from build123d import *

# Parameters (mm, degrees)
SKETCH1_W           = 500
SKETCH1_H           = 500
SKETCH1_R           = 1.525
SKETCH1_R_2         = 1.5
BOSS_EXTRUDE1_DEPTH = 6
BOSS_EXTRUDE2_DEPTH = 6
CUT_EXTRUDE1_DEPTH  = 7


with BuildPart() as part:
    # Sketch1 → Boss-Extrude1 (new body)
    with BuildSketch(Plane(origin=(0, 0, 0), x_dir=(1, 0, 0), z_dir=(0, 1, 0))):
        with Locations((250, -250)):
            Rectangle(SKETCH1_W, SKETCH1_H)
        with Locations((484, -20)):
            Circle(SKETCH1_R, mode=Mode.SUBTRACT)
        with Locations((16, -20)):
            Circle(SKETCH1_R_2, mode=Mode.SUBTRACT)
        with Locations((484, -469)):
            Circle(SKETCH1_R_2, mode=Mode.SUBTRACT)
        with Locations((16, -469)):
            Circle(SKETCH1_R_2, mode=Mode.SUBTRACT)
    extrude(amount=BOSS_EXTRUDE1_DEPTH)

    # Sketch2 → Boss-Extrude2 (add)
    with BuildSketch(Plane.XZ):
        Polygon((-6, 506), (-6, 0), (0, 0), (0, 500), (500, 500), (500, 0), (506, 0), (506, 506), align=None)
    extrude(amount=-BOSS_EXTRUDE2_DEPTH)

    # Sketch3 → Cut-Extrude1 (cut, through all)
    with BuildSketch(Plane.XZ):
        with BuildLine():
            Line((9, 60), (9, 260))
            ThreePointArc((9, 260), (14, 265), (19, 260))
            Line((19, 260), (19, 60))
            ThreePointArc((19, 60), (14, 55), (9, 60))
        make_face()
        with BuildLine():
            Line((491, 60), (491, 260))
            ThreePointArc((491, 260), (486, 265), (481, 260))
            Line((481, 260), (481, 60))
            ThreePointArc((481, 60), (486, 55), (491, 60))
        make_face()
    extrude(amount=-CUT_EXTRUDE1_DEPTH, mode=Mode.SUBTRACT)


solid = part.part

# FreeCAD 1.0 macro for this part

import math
import FreeCAD as App
import Part
import Sketcher

V = App.Vector
Q = App.Units.Quantity


def add_polygon(sketch, points):
    """Adds a closed chain of lines whose ends are joined by coincident constraints."""
    first, n = sketch.GeometryCount, len(points)
    for a, b in zip(points, points[1:] + points[:1]):
        sketch.addGeometry(Part.LineSegment(App.Vector(*a, 0), App.Vector(*b, 0)), False)
    for i in range(n):
        sketch.addConstraint(Sketcher.Constraint("Coincident", first + i, 2, first + (i + 1) % n, 1))

doc = App.newDocument("Part")
params = doc.addObject("Spreadsheet::Sheet", "Params")
for row, (alias, value) in enumerate([
    ("sketch1_diameter", "3 mm"),
    ("sketch1_diameter2", "3.05 mm"),
    ("sketch1_width", "500 mm"),
    ("pad1_length", "6 mm"),
    ("sketch2_width", "6 mm"),
    ("sketch2_width2", "500 mm"),
    ("sketch2_height", "506 mm"),
    ("pad2_length", "6 mm"),
    ("sketch3_radius", "5 mm"),
    ("sketch3_height", "200 mm"),
], start=1):
    params.set(f"A{row}", alias)
    params.set(f"B{row}", "=" + value)
    params.setAlias(f"B{row}", alias)

body = doc.addObject("PartDesign::Body", "Body")

sketch1 = body.newObject("Sketcher::SketchObject", "Sketch")
sketch1.AttachmentSupport = (doc.getObject("XZ_Plane"), [""])
sketch1.MapMode = "FlatFace"
add_polygon(sketch1, [(0, 0), (0, 500), (500, 500), (500, 0)])
sketch1.addGeometry(Part.Circle(V(16, 469, 0), V(0, 0, 1), 1.5), False)
sketch1.addGeometry(Part.Circle(V(484, 469, 0), V(0, 0, 1), 1.5), False)
sketch1.addGeometry(Part.Circle(V(16, 20, 0), V(0, 0, 1), 1.5), False)
sketch1.addGeometry(Part.Circle(V(484, 20, 0), V(0, 0, 1), 1.525), False)
sketch1.addConstraint(Sketcher.Constraint("Vertical", 0))
sketch1.addConstraint(Sketcher.Constraint("Horizontal", 1))
sketch1.addConstraint(Sketcher.Constraint("Vertical", 2))
sketch1.addConstraint(Sketcher.Constraint("Horizontal", 3))
sketch1.addConstraint(Sketcher.Constraint("Coincident", 3, 2, -1, 1))
sketch1.addConstraint(Sketcher.Constraint("Equal", 4, 5))
sketch1.addConstraint(Sketcher.Constraint("Equal", 5, 6))
sketch1.addConstraint(Sketcher.Constraint("Horizontal", 4, 3, 5, 3))
sketch1.addConstraint(Sketcher.Constraint("Horizontal", 6, 3, 7, 3))
sketch1.addConstraint(Sketcher.Constraint("Vertical", 4, 3, 6, 3))
sketch1.addConstraint(Sketcher.Constraint("Vertical", 5, 3, 7, 3))
sketch1.addConstraint(Sketcher.Constraint("Equal", 3, 0))
sketch1.addConstraint(Sketcher.Constraint("Diameter", 4, Q("3 mm")))
sketch1.addConstraint(Sketcher.Constraint("Diameter", 7, Q("3.05 mm")))
sketch1.addConstraint(Sketcher.Constraint("DistanceX", 1, 1, 1, 2, Q("500 mm")))
sketch1.addConstraint(Sketcher.Constraint("DistanceX", -1, 1, 4, 3, Q("16 mm")))
sketch1.addConstraint(Sketcher.Constraint("DistanceY", -1, 1, 4, 3, Q("469 mm")))
sketch1.addConstraint(Sketcher.Constraint("DistanceX", -1, 1, 5, 3, Q("484 mm")))
sketch1.addConstraint(Sketcher.Constraint("DistanceY", -1, 1, 6, 3, Q("20 mm")))
sketch1.setExpression("Constraints[16]", "Params.sketch1_diameter")
sketch1.setExpression("Constraints[17]", "Params.sketch1_diameter2")
sketch1.setExpression("Constraints[18]", "Params.sketch1_width")
pad1 = body.newObject("PartDesign::Pad", "Pad")
pad1.Profile = sketch1
pad1.setExpression("Length", "Params.pad1_length")
pad1.Reversed = True

sketch2 = body.newObject("Sketcher::SketchObject", "Sketch001")
sketch2.AttachmentSupport = (doc.getObject("XZ_Plane"), [""])
sketch2.MapMode = "FlatFace"
add_polygon(sketch2, [(-6, 506), (-6, 0), (0, 0), (0, 500), (500, 500), (500, 0), (506, 0), (506, 506)])
sketch2.addConstraint(Sketcher.Constraint("Vertical", 0))
sketch2.addConstraint(Sketcher.Constraint("Horizontal", 1))
sketch2.addConstraint(Sketcher.Constraint("Vertical", 2))
sketch2.addConstraint(Sketcher.Constraint("Horizontal", 3))
sketch2.addConstraint(Sketcher.Constraint("Vertical", 4))
sketch2.addConstraint(Sketcher.Constraint("Horizontal", 5))
sketch2.addConstraint(Sketcher.Constraint("Vertical", 6))
sketch2.addConstraint(Sketcher.Constraint("Horizontal", 7))
sketch2.addConstraint(Sketcher.Constraint("Coincident", 1, 2, -1, 1))
sketch2.addConstraint(Sketcher.Constraint("PointOnObject", 4, 2, -1))
sketch2.addConstraint(Sketcher.Constraint("Equal", 1, 5))
sketch2.addConstraint(Sketcher.Constraint("Equal", 3, 2))
sketch2.addConstraint(Sketcher.Constraint("DistanceX", 1, 1, 1, 2, Q("6 mm")))
sketch2.addConstraint(Sketcher.Constraint("DistanceX", 3, 1, 3, 2, Q("500 mm")))
sketch2.addConstraint(Sketcher.Constraint("DistanceY", 0, 2, 0, 1, Q("506 mm")))
sketch2.setExpression("Constraints[20]", "Params.sketch2_width")
sketch2.setExpression("Constraints[21]", "Params.sketch2_width2")
sketch2.setExpression("Constraints[22]", "Params.sketch2_height")
pad2 = body.newObject("PartDesign::Pad", "Pad001")
pad2.Profile = sketch2
pad2.setExpression("Length", "Params.pad2_length")
pad2.Reversed = True

sketch3 = body.newObject("Sketcher::SketchObject", "Sketch002")
sketch3.AttachmentSupport = (doc.getObject("XZ_Plane"), [""])
sketch3.MapMode = "FlatFace"
sketch3.addGeometry(Part.LineSegment(V(9, 260, 0), V(9, 60, 0)), False)
sketch3.addGeometry(Part.ArcOfCircle(Part.Circle(V(14, 60, 0), V(0, 0, 1), 5), math.radians(180), math.radians(360)), False)
sketch3.addGeometry(Part.LineSegment(V(19, 60, 0), V(19, 260, 0)), False)
sketch3.addGeometry(Part.ArcOfCircle(Part.Circle(V(14, 260, 0), V(0, 0, 1), 5), math.radians(0), math.radians(180)), False)
sketch3.addGeometry(Part.LineSegment(V(491, 60, 0), V(491, 260, 0)), False)
sketch3.addGeometry(Part.ArcOfCircle(Part.Circle(V(486, 260, 0), V(0, 0, 1), 5), math.radians(0), math.radians(180)), False)
sketch3.addGeometry(Part.LineSegment(V(481, 260, 0), V(481, 60, 0)), False)
sketch3.addGeometry(Part.ArcOfCircle(Part.Circle(V(486, 60, 0), V(0, 0, 1), 5), math.radians(180), math.radians(360)), False)
sketch3.addConstraint(Sketcher.Constraint("Tangent", 0, 2, 1, 1))
sketch3.addConstraint(Sketcher.Constraint("Tangent", 1, 2, 2, 1))
sketch3.addConstraint(Sketcher.Constraint("Tangent", 2, 2, 3, 1))
sketch3.addConstraint(Sketcher.Constraint("Tangent", 3, 2, 0, 1))
sketch3.addConstraint(Sketcher.Constraint("Tangent", 4, 2, 5, 1))
sketch3.addConstraint(Sketcher.Constraint("Tangent", 5, 2, 6, 1))
sketch3.addConstraint(Sketcher.Constraint("Tangent", 6, 2, 7, 1))
sketch3.addConstraint(Sketcher.Constraint("Tangent", 7, 2, 4, 1))
sketch3.addConstraint(Sketcher.Constraint("Vertical", 0))
sketch3.addConstraint(Sketcher.Constraint("Vertical", 2))
sketch3.addConstraint(Sketcher.Constraint("Vertical", 4))
sketch3.addConstraint(Sketcher.Constraint("Vertical", 6))
sketch3.addConstraint(Sketcher.Constraint("Equal", 3, 5))
sketch3.addConstraint(Sketcher.Constraint("Horizontal", 3, 3, 5, 3))
sketch3.addConstraint(Sketcher.Constraint("Horizontal", 1, 3, 7, 3))
sketch3.addConstraint(Sketcher.Constraint("Radius", 1, Q("5 mm")))
sketch3.addConstraint(Sketcher.Constraint("DistanceY", 0, 2, 0, 1, Q("200 mm")))
sketch3.addConstraint(Sketcher.Constraint("DistanceX", -1, 1, 1, 3, Q("14 mm")))
sketch3.addConstraint(Sketcher.Constraint("DistanceY", -1, 1, 1, 3, Q("60 mm")))
sketch3.addConstraint(Sketcher.Constraint("DistanceX", -1, 1, 5, 3, Q("486 mm")))
sketch3.setExpression("Constraints[15]", "Params.sketch3_radius")
sketch3.setExpression("Constraints[16]", "Params.sketch3_height")
pocket1 = body.newObject("PartDesign::Pocket", "Pocket")
pocket1.Profile = sketch3
pocket1.Type = "ThroughAll"

doc.recompute()
